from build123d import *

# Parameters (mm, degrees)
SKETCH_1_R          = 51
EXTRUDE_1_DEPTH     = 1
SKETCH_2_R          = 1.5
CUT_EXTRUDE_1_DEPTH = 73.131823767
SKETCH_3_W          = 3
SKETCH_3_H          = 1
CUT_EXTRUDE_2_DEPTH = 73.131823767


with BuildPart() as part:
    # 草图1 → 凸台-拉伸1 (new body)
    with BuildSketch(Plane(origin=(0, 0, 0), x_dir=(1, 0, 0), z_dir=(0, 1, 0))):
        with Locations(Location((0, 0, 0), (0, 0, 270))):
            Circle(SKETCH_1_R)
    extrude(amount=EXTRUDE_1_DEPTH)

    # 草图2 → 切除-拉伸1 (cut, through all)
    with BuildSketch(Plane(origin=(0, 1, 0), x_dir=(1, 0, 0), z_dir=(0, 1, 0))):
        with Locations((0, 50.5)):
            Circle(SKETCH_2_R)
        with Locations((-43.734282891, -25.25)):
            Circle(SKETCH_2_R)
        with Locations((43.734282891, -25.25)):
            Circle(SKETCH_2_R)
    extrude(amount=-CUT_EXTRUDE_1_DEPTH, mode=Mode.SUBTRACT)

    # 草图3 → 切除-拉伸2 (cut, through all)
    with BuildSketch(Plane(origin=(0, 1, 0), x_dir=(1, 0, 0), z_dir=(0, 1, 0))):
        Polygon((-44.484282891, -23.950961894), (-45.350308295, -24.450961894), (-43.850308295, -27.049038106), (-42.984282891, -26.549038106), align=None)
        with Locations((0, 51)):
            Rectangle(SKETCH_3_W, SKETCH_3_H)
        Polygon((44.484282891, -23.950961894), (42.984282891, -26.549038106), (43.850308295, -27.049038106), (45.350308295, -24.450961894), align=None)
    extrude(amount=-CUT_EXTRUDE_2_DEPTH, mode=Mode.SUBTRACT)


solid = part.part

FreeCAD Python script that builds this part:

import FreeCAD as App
import Part
import Sketcher
Q = App.Units.Quantity

doc = App.newDocument("Part")
body = doc.addObject("PartDesign::Body", "Body")

sketch1 = body.newObject("Sketcher::SketchObject", "Sketch")
sketch1.AttachmentSupport = (doc.getObject("XZ_Plane"), [""])
sketch1.MapMode = "FlatFace"
sketch1.addGeometry(Part.Circle(App.Vector(0, 0, 0), App.Vector(0, 0, 1), 51), False)
sketch1.addConstraint(Sketcher.Constraint("Coincident", 0, 3, -1, 1))
sketch1.addConstraint(Sketcher.Constraint("Diameter", 0, 102.0))
pad1 = body.newObject("PartDesign::Pad", "Pad")
pad1.Profile = sketch1
pad1.Length = 1
pad1.Reversed = True

sketch2 = body.newObject("Sketcher::SketchObject", "Sketch001")
sketch2.AttachmentSupport = (doc.getObject("XZ_Plane"), [""])
sketch2.MapMode = "FlatFace"
sketch2.AttachmentOffset = App.Placement(App.Vector(0, 0, -1), App.Rotation())
sketch2.addGeometry(Part.Circle(App.Vector(0, -50.5, 0), App.Vector(0, 0, 1), 1.5), False)
sketch2.addGeometry(Part.Circle(App.Vector(-43.7, 25.2, 0), App.Vector(0, 0, 1), 1.5), False)
sketch2.addGeometry(Part.Circle(App.Vector(43.7, 25.2, 0), App.Vector(0, 0, 1), 1.5), False)
sketch2.addConstraint(Sketcher.Constraint("Equal", 0, 1))
sketch2.addConstraint(Sketcher.Constraint("Equal", 1, 2))
sketch2.addConstraint(Sketcher.Constraint("Symmetric", 1, 3, 2, 3, -2))
sketch2.addConstraint(Sketcher.Constraint("PointOnObject", 0, 3, -2))
sketch2.addConstraint(Sketcher.Constraint("Diameter", 0, 3.0))
sketch2.addConstraint(Sketcher.Constraint("DistanceY", 0, 3, -1, 1, 50.5))
sketch2.addConstraint(Sketcher.Constraint("DistanceY", -1, 1, 1, 3, 25.25))
sketch2.addConstraint(Sketcher.Constraint("DistanceX", 1, 3, -1, 1, 43.734283))
pocket1 = body.newObject("PartDesign::Pocket", "Pocket")
pocket1.Profile = sketch2
pocket1.Type = "ThroughAll"
pocket1.Reversed = True

sketch3 = body.newObject("Sketcher::SketchObject", "Sketch002")
sketch3.AttachmentSupport = (doc.getObject("XZ_Plane"), [""])
sketch3.MapMode = "FlatFace"
sketch3.AttachmentOffset = App.Placement(App.Vector(0, 0, -1), App.Rotation())
sketch3.addGeometry(Part.LineSegment(App.Vector(-44.5, 24, 0), App.Vector(-45.4, 24.5, 0)), False)
sketch3.addGeometry(Part.LineSegment(App.Vector(-45.4, 24.5, 0), App.Vector(-43.9, 27, 0)), False)
sketch3.addGeometry(Part.LineSegment(App.Vector(-43.9, 27, 0), App.Vector(-43, 26.5, 0)), False)
sketch3.addGeometry(Part.LineSegment(App.Vector(-43, 26.5, 0), App.Vector(-44.5, 24, 0)), False)
sketch3.addGeometry(Part.LineSegment(App.Vector(-1.5, -51.5, 0), App.Vector(-1.5, -50.5, 0)), False)
sketch3.addGeometry(Part.LineSegment(App.Vector(-1.5, -50.5, 0), App.Vector(1.5, -50.5, 0)), False)
sketch3.addGeometry(Part.LineSegment(App.Vector(1.5, -50.5, 0), App.Vector(1.5, -51.5, 0)), False)
sketch3.addGeometry(Part.LineSegment(App.Vector(1.5, -51.5, 0), App.Vector(-1.5, -51.5, 0)), False)
sketch3.addGeometry(Part.LineSegment(App.Vector(44.5, 24, 0), App.Vector(43, 26.5, 0)), False)
sketch3.addGeometry(Part.LineSegment(App.Vector(43, 26.5, 0), App.Vector(43.9, 27, 0)), False)
sketch3.addGeometry(Part.LineSegment(App.Vector(43.9, 27, 0), App.Vector(45.4, 24.5, 0)), False)
sketch3.addGeometry(Part.LineSegment(App.Vector(45.4, 24.5, 0), App.Vector(44.5, 24, 0)), False)
sketch3.addConstraint(Sketcher.Constraint("Coincident", 0, 2, 1, 1))
sketch3.addConstraint(Sketcher.Constraint("Coincident", 1, 2, 2, 1))
sketch3.addConstraint(Sketcher.Constraint("Coincident", 2, 2, 3, 1))
sketch3.addConstraint(Sketcher.Constraint("Coincident", 3, 2, 0, 1))
sketch3.addConstraint(Sketcher.Constraint("Coincident", 4, 2, 5, 1))
sketch3.addConstraint(Sketcher.Constraint("Coincident", 5, 2, 6, 1))
sketch3.addConstraint(Sketcher.Constraint("Coincident", 6, 2, 7, 1))
sketch3.addConstraint(Sketcher.Constraint("Coincident", 7, 2, 4, 1))
sketch3.addConstraint(Sketcher.Constraint("Coincident", 8, 2, 9, 1))
sketch3.addConstraint(Sketcher.Constraint("Coincident", 9, 2, 10, 1))
sketch3.addConstraint(Sketcher.Constraint("Coincident", 10, 2, 11, 1))
sketch3.addConstraint(Sketcher.Constraint("Coincident", 11, 2, 8, 1))
sketch3.addConstraint(Sketcher.Constraint("Vertical", 4))
sketch3.addConstraint(Sketcher.Constraint("Horizontal", 5))
sketch3.addConstraint(Sketcher.Constraint("Vertical", 6))
sketch3.addConstraint(Sketcher.Constraint("Horizontal", 7))
sketch3.addConstraint(Sketcher.Constraint("Symmetric", 2, 2, 8, 2, -2))
sketch3.addConstraint(Sketcher.Constraint("Symmetric", 1, 2, 9, 2, -2))
sketch3.addConstraint(Sketcher.Constraint("Symmetric", 0, 2, 10, 2, -2))
sketch3.addConstraint(Sketcher.Constraint("Symmetric", 3, 2, 11, 2, -2))
sketch3.addConstraint(Sketcher.Constraint("Perpendicular", 0, 1))
sketch3.addConstraint(Sketcher.Constraint("Perpendicular", 1, 2))
sketch3.addConstraint(Sketcher.Constraint("Perpendicular", 2, 3))
sketch3.addConstraint(Sketcher.Constraint("DistanceX", 5, 1, 5, 2, 3.0))
sketch3.addConstraint(Sketcher.Constraint("DistanceY", 4, 1, 4, 2, 1.0))
sketch3.addConstraint(Sketcher.Constraint("Angle", 0, Q("150 deg")))
sketch3.addConstraint(Sketcher.Constraint("Distance", 0, 1.0))
sketch3.addConstraint(Sketcher.Constraint("Distance", 1, 3.0))
sketch3.addConstraint(Sketcher.Constraint("DistanceX", 4, 2, -1, 1, 1.5))
sketch3.addConstraint(Sketcher.Constraint("DistanceY", 4, 2, -1, 1, 50.5))
sketch3.addConstraint(Sketcher.Constraint("DistanceX", 0, 2, -1, 1, 45.350308))
sketch3.addConstraint(Sketcher.Constraint("DistanceY", -1, 1, 0, 2, 24.450962))
pocket2 = body.newObject("PartDesign::Pocket", "Pocket001")
pocket2.Profile = sketch3
pocket2.Type = "ThroughAll"
pocket2.Reversed = True

doc.recompute()
